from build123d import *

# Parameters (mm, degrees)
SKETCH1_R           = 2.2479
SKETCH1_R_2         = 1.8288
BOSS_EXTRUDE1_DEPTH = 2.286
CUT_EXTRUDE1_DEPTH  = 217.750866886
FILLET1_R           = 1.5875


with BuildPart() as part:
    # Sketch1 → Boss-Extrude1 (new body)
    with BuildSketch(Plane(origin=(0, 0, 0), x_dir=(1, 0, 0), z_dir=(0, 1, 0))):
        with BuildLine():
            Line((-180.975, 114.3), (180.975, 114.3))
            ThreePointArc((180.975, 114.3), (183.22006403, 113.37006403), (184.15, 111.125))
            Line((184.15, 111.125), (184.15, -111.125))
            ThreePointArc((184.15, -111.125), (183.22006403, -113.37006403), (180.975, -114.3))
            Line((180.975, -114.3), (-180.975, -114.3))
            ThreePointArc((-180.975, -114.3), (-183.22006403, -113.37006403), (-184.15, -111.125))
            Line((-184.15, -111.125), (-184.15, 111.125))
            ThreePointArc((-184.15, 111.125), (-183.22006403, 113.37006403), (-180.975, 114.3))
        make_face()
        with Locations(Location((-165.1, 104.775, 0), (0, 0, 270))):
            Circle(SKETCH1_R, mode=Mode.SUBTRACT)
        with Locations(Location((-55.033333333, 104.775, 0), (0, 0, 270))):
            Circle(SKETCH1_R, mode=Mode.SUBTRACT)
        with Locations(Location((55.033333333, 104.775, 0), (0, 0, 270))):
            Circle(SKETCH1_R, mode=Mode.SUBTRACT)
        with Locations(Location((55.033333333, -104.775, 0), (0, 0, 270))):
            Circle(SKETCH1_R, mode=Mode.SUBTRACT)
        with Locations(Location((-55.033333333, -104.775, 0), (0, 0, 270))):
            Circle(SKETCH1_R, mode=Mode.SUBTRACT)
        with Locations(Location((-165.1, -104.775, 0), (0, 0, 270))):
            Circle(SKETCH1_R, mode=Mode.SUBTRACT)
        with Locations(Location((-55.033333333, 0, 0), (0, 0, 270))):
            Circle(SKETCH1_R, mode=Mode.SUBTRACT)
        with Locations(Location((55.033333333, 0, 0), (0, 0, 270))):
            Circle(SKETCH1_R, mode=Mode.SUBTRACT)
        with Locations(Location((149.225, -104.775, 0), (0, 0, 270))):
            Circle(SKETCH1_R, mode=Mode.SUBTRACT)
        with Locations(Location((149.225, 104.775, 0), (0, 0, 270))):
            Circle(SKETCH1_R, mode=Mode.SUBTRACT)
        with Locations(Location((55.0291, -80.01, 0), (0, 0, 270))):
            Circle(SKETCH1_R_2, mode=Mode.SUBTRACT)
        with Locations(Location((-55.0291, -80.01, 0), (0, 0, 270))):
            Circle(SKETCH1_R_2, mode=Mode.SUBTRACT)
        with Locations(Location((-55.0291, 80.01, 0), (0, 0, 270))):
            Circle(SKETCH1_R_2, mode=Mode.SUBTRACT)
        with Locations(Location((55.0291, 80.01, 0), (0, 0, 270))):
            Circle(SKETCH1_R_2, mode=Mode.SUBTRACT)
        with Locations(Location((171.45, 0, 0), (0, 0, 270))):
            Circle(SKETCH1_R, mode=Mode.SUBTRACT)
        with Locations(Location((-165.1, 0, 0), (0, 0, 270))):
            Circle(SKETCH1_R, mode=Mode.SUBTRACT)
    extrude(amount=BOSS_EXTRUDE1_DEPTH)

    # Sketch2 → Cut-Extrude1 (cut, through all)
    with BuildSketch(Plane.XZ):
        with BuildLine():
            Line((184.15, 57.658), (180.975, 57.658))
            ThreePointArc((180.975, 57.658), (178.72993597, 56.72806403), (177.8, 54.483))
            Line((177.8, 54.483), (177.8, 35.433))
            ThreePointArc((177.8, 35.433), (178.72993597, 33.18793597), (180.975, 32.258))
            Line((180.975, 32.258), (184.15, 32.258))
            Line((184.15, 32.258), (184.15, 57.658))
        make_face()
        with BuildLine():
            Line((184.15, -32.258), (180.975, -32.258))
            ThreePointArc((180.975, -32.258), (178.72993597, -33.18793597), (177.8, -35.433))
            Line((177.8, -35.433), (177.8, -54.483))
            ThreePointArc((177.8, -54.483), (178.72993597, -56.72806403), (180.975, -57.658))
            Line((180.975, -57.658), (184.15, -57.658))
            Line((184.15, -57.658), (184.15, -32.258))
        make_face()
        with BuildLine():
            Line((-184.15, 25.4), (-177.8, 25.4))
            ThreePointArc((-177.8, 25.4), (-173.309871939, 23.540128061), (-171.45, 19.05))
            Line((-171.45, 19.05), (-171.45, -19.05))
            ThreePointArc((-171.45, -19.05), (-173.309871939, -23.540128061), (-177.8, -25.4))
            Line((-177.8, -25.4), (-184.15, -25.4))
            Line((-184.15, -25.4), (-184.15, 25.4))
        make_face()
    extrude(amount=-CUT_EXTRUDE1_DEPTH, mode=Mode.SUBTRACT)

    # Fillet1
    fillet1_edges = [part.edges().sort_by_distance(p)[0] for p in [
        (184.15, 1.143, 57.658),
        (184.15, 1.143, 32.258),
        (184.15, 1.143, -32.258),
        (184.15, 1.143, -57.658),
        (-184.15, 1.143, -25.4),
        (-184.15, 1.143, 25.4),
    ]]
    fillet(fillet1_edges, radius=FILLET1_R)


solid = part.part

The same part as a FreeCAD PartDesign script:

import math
import FreeCAD as App
import Part
import Sketcher
Q = App.Units.Quantity


def edges_at(feature, points):
    """Names of the edges that pass closest to the given points."""
    edges = feature.Shape.Edges
    near = lambda p: min(range(len(edges)), key=lambda i: edges[i].distToShape(Part.Vertex(*p))[0])
    return sorted({f"Edge{near(p) + 1}" for p in points})

doc = App.newDocument("Part")
body = doc.addObject("PartDesign::Body", "Body")

# Sketch on XZ plane
sketch1 = body.newObject("Sketcher::SketchObject", "Sketch")
sketch1.AttachmentSupport = (doc.getObject("XZ_Plane"), [""])
sketch1.MapMode = "FlatFace"
sketch1.addGeometry([
    Part.LineSegment(App.Vector(181, -114.3, 0), App.Vector(-181, -114.3, 0)),  # 0
    Part.ArcOfCircle(Part.Circle(App.Vector(-181, -111.1, 0), App.Vector(0, 0, 1), 3.2), math.radians(-180), math.radians(-90)),  # 1
    Part.LineSegment(App.Vector(-184.2, -111.1, 0), App.Vector(-184.2, 111.1, 0)),  # 2
    Part.ArcOfCircle(Part.Circle(App.Vector(-181, 111.1, 0), App.Vector(0, 0, 1), 3.2), math.radians(90), math.radians(180)),  # 3
    Part.LineSegment(App.Vector(-181, 114.3, 0), App.Vector(181, 114.3, 0)),  # 4
    Part.ArcOfCircle(Part.Circle(App.Vector(181, 111.1, 0), App.Vector(0, 0, 1), 3.2), math.radians(0), math.radians(90)),  # 5
    Part.LineSegment(App.Vector(184.2, 111.1, 0), App.Vector(184.2, -111.1, 0)),  # 6
    Part.ArcOfCircle(Part.Circle(App.Vector(181, -111.1, 0), App.Vector(0, 0, 1), 3.2), math.radians(-90), math.radians(0)),  # 7
    Part.Circle(App.Vector(149.2, 104.8, 0), App.Vector(0, 0, 1), 2.2),  # 8
    Part.Circle(App.Vector(55, 104.8, 0), App.Vector(0, 0, 1), 2.2),  # 9
    Part.Circle(App.Vector(55, 80, 0), App.Vector(0, 0, 1), 1.8),  # 10
    Part.Circle(App.Vector(-55, 104.8, 0), App.Vector(0, 0, 1), 2.2),  # 11
    Part.Circle(App.Vector(-55, 80, 0), App.Vector(0, 0, 1), 1.8),  # 12
    Part.Circle(App.Vector(-165.1, 104.8, 0), App.Vector(0, 0, 1), 2.2),  # 13
    Part.Circle(App.Vector(171.4, 0, 0), App.Vector(0, 0, 1), 2.2),  # 14
    Part.Circle(App.Vector(55, 0, 0), App.Vector(0, 0, 1), 2.2),  # 15
    Part.Circle(App.Vector(149.2, -104.8, 0), App.Vector(0, 0, 1), 2.2),  # 16
    Part.Circle(App.Vector(55, -80, 0), App.Vector(0, 0, 1), 1.8),  # 17
    Part.Circle(App.Vector(55, -104.8, 0), App.Vector(0, 0, 1), 2.2),  # 18
    Part.Circle(App.Vector(-55, 0, 0), App.Vector(0, 0, 1), 2.2),  # 19
    Part.Circle(App.Vector(-165.1, 0, 0), App.Vector(0, 0, 1), 2.2),  # 20
    Part.Circle(App.Vector(-55, -80, 0), App.Vector(0, 0, 1), 1.8),  # 21
    Part.Circle(App.Vector(-55, -104.8, 0), App.Vector(0, 0, 1), 2.2),  # 22
    Part.Circle(App.Vector(-165.1, -104.8, 0), App.Vector(0, 0, 1), 2.2),  # 23
], False)
sketch1.addConstraint([
    Sketcher.Constraint("Tangent", 0, 2, 1, 2),
    Sketcher.Constraint("Tangent", 1, 1, 2, 1),
    Sketcher.Constraint("Tangent", 2, 2, 3, 2),
    Sketcher.Constraint("Tangent", 3, 1, 4, 1),
    Sketcher.Constraint("Tangent", 4, 2, 5, 2),
    Sketcher.Constraint("Tangent", 5, 1, 6, 1),
    Sketcher.Constraint("Tangent", 6, 2, 7, 2),
    Sketcher.Constraint("Tangent", 7, 1, 0, 1),
    Sketcher.Constraint("Horizontal", 0),
    Sketcher.Constraint("Vertical", 2),
    Sketcher.Constraint("Horizontal", 4),
    Sketcher.Constraint("Vertical", 6),
    Sketcher.Constraint("Equal", 1, 3),
    Sketcher.Constraint("Equal", 3, 5),
    Sketcher.Constraint("Equal", 5, 7),
    Sketcher.Constraint("Equal", 8, 9),
    Sketcher.Constraint("Equal", 9, 11),
    Sketcher.Constraint("Equal", 10, 12),
    Sketcher.Constraint("Equal", 11, 13),
    Sketcher.Constraint("Equal", 13, 14),
    Sketcher.Constraint("Equal", 14, 15),
    Sketcher.Constraint("Equal", 15, 16),
    Sketcher.Constraint("Equal", 12, 17),
    Sketcher.Constraint("Equal", 16, 18),
    Sketcher.Constraint("Equal", 18, 19),
    Sketcher.Constraint("Equal", 19, 20),
    Sketcher.Constraint("Equal", 17, 21),
    Sketcher.Constraint("Equal", 20, 22),
    Sketcher.Constraint("Equal", 22, 23),
    Sketcher.Constraint("Symmetric", 1, 3, 5, 3, -1, 1),
    Sketcher.Constraint("Symmetric", 12, 3, 17, 3, -1, 1),
    Sketcher.Constraint("Symmetric", 11, 3, 18, 3, -1, 1),
    Sketcher.Constraint("Symmetric", 15, 3, 19, 3, -1, 1),
    Sketcher.Constraint("Symmetric", 10, 3, 21, 3, -1, 1),
    Sketcher.Constraint("Symmetric", 9, 3, 22, 3, -1, 1),
    Sketcher.Constraint("Symmetric", 9, 3, 11, 3, -2),
    Sketcher.Constraint("Symmetric", 10, 3, 12, 3, -2),
    Sketcher.Constraint("Symmetric", 8, 3, 16, 3, -1),
    Sketcher.Constraint("Symmetric", 13, 3, 23, 3, -1),
    Sketcher.Constraint("PointOnObject", 14, 3, -1),
    Sketcher.Constraint("PointOnObject", 15, 3, -1),
    Sketcher.Constraint("PointOnObject", 20, 3, -1),
    Sketcher.Constraint("Horizontal", 8, 3, 9, 3),
    Sketcher.Constraint("Horizontal", 11, 3, 13, 3),
    Sketcher.Constraint("Vertical", 9, 3, 15, 3),
    Sketcher.Constraint("Vertical", 13, 3, 20, 3),
    Sketcher.Constraint("Diameter", 8, Q("0.177 in")),
    Sketcher.Constraint("Diameter", 10, Q("0.144 in")),
    Sketcher.Constraint("Radius", 1, Q("0.125 in")),
    Sketcher.Constraint("DistanceX", 3, 3, 8, 3, Q("13 in")),
    Sketcher.Constraint("DistanceX", 0, 2, 0, 1, Q("14.25 in")),
    Sketcher.Constraint("DistanceY", 2, 1, 2, 2, Q("8.75 in")),
    Sketcher.Constraint("DistanceX", 13, 3, -1, 1, Q("6.5 in")),
    Sketcher.Constraint("DistanceY", 7, 3, 8, 3, Q("8.5 in")),
    Sketcher.Constraint("DistanceY", 17, 3, 10, 3, Q("6.3 in")),
    Sketcher.Constraint("DistanceX", 14, 3, 5, 1, Q("0.5 in")),
    Sketcher.Constraint("DistanceX", 12, 3, 10, 3, Q("4.333 in")),
    Sketcher.Constraint("DistanceX", -1, 1, 9, 3, 55.033333),
])
pad1 = body.newObject("PartDesign::Pad", "Pad")
pad1.Profile = sketch1
pad1.Length = Q("0.09 in")
pad1.Reversed = True

# Sketch on XZ plane
sketch2 = body.newObject("Sketcher::SketchObject", "Sketch001")
sketch2.AttachmentSupport = (doc.getObject("XZ_Plane"), [""])
sketch2.MapMode = "FlatFace"
sketch2.addGeometry([
    Part.LineSegment(App.Vector(184.2, 57.7, 0), App.Vector(181, 57.7, 0)),  # 0
    Part.ArcOfCircle(Part.Circle(App.Vector(181, 54.5, 0), App.Vector(0, 0, 1), 3.2), math.radians(90), math.radians(180)),  # 1
    Part.LineSegment(App.Vector(177.8, 54.5, 0), App.Vector(177.8, 35.4, 0)),  # 2
    Part.ArcOfCircle(Part.Circle(App.Vector(181, 35.4, 0), App.Vector(0, 0, 1), 3.2), math.radians(-180), math.radians(-90)),  # 3
    Part.LineSegment(App.Vector(181, 32.3, 0), App.Vector(184.2, 32.3, 0)),  # 4
    Part.LineSegment(App.Vector(184.2, 32.3, 0), App.Vector(184.2, 57.7, 0)),  # 5
    Part.LineSegment(App.Vector(184.2, -32.3, 0), App.Vector(181, -32.3, 0)),  # 6
    Part.ArcOfCircle(Part.Circle(App.Vector(181, -35.4, 0), App.Vector(0, 0, 1), 3.2), math.radians(90), math.radians(180)),  # 7
    Part.LineSegment(App.Vector(177.8, -35.4, 0), App.Vector(177.8, -54.5, 0)),  # 8
    Part.ArcOfCircle(Part.Circle(App.Vector(181, -54.5, 0), App.Vector(0, 0, 1), 3.2), math.radians(-180), math.radians(-90)),  # 9
    Part.LineSegment(App.Vector(181, -57.7, 0), App.Vector(184.2, -57.7, 0)),  # 10
    Part.LineSegment(App.Vector(184.2, -57.7, 0), App.Vector(184.2, -32.3, 0)),  # 11
    Part.LineSegment(App.Vector(-177.8, 25.4, 0), App.Vector(-184.2, 25.4, 0)),  # 12
    Part.LineSegment(App.Vector(-184.2, 25.4, 0), App.Vector(-184.2, -25.4, 0)),  # 13
    Part.LineSegment(App.Vector(-184.2, -25.4, 0), App.Vector(-177.8, -25.4, 0)),  # 14
    Part.ArcOfCircle(Part.Circle(App.Vector(-177.8, -19.1, 0), App.Vector(0, 0, 1), 6.3), math.radians(-90), math.radians(0)),  # 15
    Part.LineSegment(App.Vector(-171.4, -19.1, 0), App.Vector(-171.4, 19.1, 0)),  # 16
    Part.ArcOfCircle(Part.Circle(App.Vector(-177.8, 19.1, 0), App.Vector(0, 0, 1), 6.3), math.radians(0), math.radians(90)),  # 17
], False)
sketch2.addConstraint([
    Sketcher.Constraint("Tangent", 0, 2, 1, 1),
    Sketcher.Constraint("Tangent", 1, 2, 2, 1),
    Sketcher.Constraint("Tangent", 2, 2, 3, 1),
    Sketcher.Constraint("Tangent", 3, 2, 4, 1),
    Sketcher.Constraint("Coincident", 4, 2, 5, 1),
    Sketcher.Constraint("Coincident", 5, 2, 0, 1),
    Sketcher.Constraint("Tangent", 6, 2, 7, 1),
    Sketcher.Constraint("Tangent", 7, 2, 8, 1),
    Sketcher.Constraint("Tangent", 8, 2, 9, 1),
    Sketcher.Constraint("Tangent", 9, 2, 10, 1),
    Sketcher.Constraint("Coincident", 10, 2, 11, 1),
    Sketcher.Constraint("Coincident", 11, 2, 6, 1),
    Sketcher.Constraint("Coincident", 12, 2, 13, 1),
    Sketcher.Constraint("Coincident", 13, 2, 14, 1),
    Sketcher.Constraint("Tangent", 14, 2, 15, 1),
    Sketcher.Constraint("Tangent", 15, 2, 16, 1),
    Sketcher.Constraint("Tangent", 16, 2, 17, 1),
    Sketcher.Constraint("Tangent", 17, 2, 12, 1),
    Sketcher.Constraint("Horizontal", 0),
    Sketcher.Constraint("Vertical", 2),
    Sketcher.Constraint("Horizontal", 4),
    Sketcher.Constraint("Vertical", 5),
    Sketcher.Constraint("Horizontal", 6),
    Sketcher.Constraint("Vertical", 8),
    Sketcher.Constraint("Horizontal", 10),
    Sketcher.Constraint("Vertical", 11),
    Sketcher.Constraint("Horizontal", 12),
    Sketcher.Constraint("Vertical", 13),
    Sketcher.Constraint("Horizontal", 14),
    Sketcher.Constraint("Vertical", 16),
    Sketcher.Constraint("Equal", 1, 3),
    Sketcher.Constraint("Equal", 3, 7),
    Sketcher.Constraint("Equal", 7, 9),
    Sketcher.Constraint("Equal", 15, 17),
    Sketcher.Constraint("Symmetric", 3, 3, 7, 3, -1),
    Sketcher.Constraint("Symmetric", 5, 2, 10, 2, -1),
    Sketcher.Constraint("DistanceY", 5, 1, 5, 2, Q("1 in")),
    Sketcher.Constraint("DistanceY", 13, 2, 13, 1, Q("2 in")),
    Sketcher.Constraint("Radius", 15, Q("0.25 in")),
    Sketcher.Constraint("DistanceX", 15, 3, -1, 1, Q("7 in")),
    Sketcher.Constraint("DistanceX", -1, 1, 1, 2, Q("7 in")),
    Sketcher.Constraint("DistanceY", -1, 1, 12, 2, Q("1 in")),
    Sketcher.Constraint("Radius", 1, Q("0.125 in")),
    Sketcher.Constraint("DistanceX", 12, 2, 12, 1, Q("0.25 in")),
    Sketcher.Constraint("DistanceX", 0, 2, 0, 1, Q("0.125 in")),
    Sketcher.Constraint("DistanceY", -1, 1, 0, 2, Q("2.27 in")),
])
pocket1 = body.newObject("PartDesign::Pocket", "Pocket")
pocket1.Profile = sketch2
pocket1.Type = "ThroughAll"
doc.recompute()

fillet = body.newObject("PartDesign::Fillet", "Fillet")
fillet.Base = (pocket1, edges_at(pocket1, [
    (184.15, 1.143, 57.658),
    (184.15, 1.143, 32.258),
    (184.15, 1.143, -32.258),
    (184.15, 1.143, -57.658),
    (-184.15, 1.143, -25.4),
    (-184.15, 1.143, 25.4),
]))
fillet.Radius = Q("0.0625 in")

doc.recompute()
